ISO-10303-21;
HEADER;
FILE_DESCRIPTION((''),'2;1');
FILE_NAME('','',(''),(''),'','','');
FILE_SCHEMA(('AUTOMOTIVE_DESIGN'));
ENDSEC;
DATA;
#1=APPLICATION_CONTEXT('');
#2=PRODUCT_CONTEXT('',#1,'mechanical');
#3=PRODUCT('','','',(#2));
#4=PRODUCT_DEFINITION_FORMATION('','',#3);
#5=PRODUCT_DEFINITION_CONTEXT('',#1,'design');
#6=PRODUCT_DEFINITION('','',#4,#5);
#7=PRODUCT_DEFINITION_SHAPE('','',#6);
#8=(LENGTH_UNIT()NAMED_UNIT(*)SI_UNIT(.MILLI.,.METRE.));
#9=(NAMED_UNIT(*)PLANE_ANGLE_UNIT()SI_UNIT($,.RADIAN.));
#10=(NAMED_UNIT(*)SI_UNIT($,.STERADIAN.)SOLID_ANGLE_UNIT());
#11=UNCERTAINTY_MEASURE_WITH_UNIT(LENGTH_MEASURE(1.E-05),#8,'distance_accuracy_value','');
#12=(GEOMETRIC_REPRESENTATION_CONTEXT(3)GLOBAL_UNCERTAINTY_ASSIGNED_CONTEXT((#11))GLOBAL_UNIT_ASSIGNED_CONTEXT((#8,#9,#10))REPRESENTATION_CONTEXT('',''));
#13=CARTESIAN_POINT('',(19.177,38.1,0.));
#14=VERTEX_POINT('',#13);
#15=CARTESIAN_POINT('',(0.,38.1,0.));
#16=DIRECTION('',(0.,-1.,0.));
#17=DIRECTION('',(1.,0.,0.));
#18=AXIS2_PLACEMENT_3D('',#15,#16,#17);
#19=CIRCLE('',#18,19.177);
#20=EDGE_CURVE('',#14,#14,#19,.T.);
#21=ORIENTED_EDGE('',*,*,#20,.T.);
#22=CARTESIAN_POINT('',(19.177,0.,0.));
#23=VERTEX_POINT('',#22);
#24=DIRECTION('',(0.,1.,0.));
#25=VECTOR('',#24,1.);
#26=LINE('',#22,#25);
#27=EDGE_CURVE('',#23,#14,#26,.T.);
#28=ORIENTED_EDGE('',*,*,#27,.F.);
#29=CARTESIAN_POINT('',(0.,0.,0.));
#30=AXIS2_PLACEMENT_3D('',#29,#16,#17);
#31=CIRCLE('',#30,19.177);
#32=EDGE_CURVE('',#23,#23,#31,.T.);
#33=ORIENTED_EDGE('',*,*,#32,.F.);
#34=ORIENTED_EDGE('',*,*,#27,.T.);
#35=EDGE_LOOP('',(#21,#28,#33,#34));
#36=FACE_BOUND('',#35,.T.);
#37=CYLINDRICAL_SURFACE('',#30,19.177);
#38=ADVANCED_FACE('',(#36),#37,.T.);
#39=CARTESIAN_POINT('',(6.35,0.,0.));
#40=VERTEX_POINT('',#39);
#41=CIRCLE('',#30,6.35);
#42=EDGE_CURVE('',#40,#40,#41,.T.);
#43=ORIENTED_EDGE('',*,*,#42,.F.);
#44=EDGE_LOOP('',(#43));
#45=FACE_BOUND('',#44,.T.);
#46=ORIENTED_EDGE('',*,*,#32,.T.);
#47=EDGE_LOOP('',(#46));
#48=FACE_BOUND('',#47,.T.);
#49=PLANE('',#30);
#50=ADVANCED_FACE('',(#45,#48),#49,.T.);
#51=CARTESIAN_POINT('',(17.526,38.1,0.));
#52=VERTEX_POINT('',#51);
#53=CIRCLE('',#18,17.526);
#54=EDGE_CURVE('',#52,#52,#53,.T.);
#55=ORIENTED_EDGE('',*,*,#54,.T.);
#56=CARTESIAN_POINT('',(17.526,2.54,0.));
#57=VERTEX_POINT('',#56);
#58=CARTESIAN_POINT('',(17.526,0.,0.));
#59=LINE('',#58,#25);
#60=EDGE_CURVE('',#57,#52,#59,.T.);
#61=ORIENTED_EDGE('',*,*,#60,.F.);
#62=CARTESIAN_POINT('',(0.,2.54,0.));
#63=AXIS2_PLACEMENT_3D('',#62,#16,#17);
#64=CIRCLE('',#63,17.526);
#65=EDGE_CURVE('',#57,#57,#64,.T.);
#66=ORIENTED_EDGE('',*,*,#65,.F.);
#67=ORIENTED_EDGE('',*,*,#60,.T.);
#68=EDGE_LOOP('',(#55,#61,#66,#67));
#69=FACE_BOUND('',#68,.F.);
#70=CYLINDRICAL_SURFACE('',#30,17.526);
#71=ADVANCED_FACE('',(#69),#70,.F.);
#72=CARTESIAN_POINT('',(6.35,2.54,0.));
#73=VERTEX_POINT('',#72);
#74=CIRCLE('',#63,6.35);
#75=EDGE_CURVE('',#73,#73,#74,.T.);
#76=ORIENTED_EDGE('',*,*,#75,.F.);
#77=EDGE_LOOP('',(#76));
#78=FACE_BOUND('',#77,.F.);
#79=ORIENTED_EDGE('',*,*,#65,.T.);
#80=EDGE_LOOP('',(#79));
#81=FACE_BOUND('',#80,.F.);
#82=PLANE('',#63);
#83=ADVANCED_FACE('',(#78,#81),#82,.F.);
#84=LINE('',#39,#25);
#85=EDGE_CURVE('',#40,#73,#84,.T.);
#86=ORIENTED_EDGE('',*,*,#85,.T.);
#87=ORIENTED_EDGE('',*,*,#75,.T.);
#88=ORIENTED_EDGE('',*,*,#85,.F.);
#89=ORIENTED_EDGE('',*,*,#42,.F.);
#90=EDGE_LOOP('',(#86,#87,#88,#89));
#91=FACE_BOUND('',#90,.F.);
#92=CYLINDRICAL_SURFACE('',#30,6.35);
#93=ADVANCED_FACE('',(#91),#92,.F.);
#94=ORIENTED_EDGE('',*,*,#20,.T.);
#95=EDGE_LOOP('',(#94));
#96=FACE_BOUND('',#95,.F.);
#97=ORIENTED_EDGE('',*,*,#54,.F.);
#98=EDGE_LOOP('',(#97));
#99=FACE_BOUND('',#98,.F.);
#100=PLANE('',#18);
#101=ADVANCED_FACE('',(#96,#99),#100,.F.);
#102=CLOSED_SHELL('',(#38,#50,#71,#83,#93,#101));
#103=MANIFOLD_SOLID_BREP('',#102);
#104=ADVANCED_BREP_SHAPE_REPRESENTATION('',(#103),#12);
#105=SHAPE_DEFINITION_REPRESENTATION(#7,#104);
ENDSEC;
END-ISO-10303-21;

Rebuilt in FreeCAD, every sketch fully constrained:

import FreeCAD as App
import Part
import Sketcher
Q = App.Units.Quantity

doc = App.newDocument("Part")
body = doc.addObject("PartDesign::Body", "Body")

sketch1 = body.newObject("Sketcher::SketchObject", "Sketch")
sketch1.AttachmentSupport = (doc.getObject("XZ_Plane"), [""])
sketch1.MapMode = "FlatFace"
sketch1.addGeometry(Part.Circle(App.Vector(0, 0, 0), App.Vector(0, 0, 1), 19), False)
sketch1.addGeometry(Part.Circle(App.Vector(0, 0, 0), App.Vector(0, 0, 1), 18), False)
sketch1.addConstraint(Sketcher.Constraint("Coincident", 0, 3, -1, 1))
sketch1.addConstraint(Sketcher.Constraint("Coincident", 1, 3, -1, 1))
sketch1.addConstraint(Sketcher.Constraint("Diameter", 0, Q("1.51 in")))
sketch1.addConstraint(Sketcher.Constraint("Diameter", 1, Q("1.38 in")))
pad1 = body.newObject("PartDesign::Pad", "Pad")
pad1.Profile = sketch1
pad1.Length = Q("1.5 in")
pad1.Reversed = True

sketch2 = body.newObject("Sketcher::SketchObject", "Sketch001")
sketch2.AttachmentSupport = (doc.getObject("XZ_Plane"), [""])
sketch2.MapMode = "FlatFace"
sketch2.addGeometry(Part.Circle(App.Vector(0, 0, 0), App.Vector(0, 0, 1), 18), False)
sketch2.addConstraint(Sketcher.Constraint("Coincident", 0, 3, -1, 1))
sketch2.addConstraint(Sketcher.Constraint("Diameter", 0, Q("1.38 in")))
pad2 = body.newObject("PartDesign::Pad", "Pad001")
pad2.Profile = sketch2
pad2.Length = Q("0.1 in")
pad2.Reversed = True

sketch3 = body.newObject("Sketcher::SketchObject", "Sketch002")
sketch3.AttachmentSupport = (doc.getObject("XZ_Plane"), [""])
sketch3.MapMode = "FlatFace"
sketch3.addGeometry(Part.Circle(App.Vector(0, 0, 0), App.Vector(0, 0, 1), 6), False)
sketch3.addConstraint(Sketcher.Constraint("Coincident", 0, 3, -1, 1))
sketch3.addConstraint(Sketcher.Constraint("Diameter", 0, Q("0.5 in")))
pocket1 = body.newObject("PartDesign::Pocket", "Pocket")
pocket1.Profile = sketch3
pocket1.Length = Q("1 in")

doc.recompute()
